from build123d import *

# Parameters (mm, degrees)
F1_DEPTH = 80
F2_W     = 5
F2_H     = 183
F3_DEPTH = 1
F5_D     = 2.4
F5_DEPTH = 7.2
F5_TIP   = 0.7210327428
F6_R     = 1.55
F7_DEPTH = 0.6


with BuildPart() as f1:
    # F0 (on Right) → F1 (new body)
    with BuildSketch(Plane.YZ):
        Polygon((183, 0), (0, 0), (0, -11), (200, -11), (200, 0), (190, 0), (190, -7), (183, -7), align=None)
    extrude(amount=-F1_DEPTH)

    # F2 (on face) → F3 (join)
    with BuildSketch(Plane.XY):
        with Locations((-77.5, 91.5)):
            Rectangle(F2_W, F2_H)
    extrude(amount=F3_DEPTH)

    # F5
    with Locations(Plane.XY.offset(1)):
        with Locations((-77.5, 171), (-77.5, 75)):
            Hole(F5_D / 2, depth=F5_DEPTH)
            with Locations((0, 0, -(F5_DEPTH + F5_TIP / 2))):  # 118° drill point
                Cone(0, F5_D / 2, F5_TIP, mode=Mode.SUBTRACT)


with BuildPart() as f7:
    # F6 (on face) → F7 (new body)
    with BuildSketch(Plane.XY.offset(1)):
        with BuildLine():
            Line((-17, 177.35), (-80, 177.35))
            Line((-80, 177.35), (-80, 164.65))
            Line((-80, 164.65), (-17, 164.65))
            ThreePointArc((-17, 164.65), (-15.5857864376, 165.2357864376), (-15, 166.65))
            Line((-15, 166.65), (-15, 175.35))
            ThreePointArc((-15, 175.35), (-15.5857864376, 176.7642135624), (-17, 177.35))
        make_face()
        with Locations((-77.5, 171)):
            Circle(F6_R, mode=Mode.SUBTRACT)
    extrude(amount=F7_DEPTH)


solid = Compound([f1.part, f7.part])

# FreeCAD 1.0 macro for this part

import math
import FreeCAD as App
import Part
import Sketcher


def add_polygon(sketch, points):
    """Adds a closed chain of lines whose ends are joined by coincident constraints."""
    first, n = sketch.GeometryCount, len(points)
    for a, b in zip(points, points[1:] + points[:1]):
        sketch.addGeometry(Part.LineSegment(App.Vector(*a, 0), App.Vector(*b, 0)), False)
    for i in range(n):
        sketch.addConstraint(Sketcher.Constraint("Coincident", first + i, 2, first + (i + 1) % n, 1))

doc = App.newDocument("Part")
body = doc.addObject("PartDesign::Body", "Body")

sketch1 = body.newObject("Sketcher::SketchObject", "Sketch")
sketch1.AttachmentSupport = (doc.getObject("YZ_Plane"), [""])
sketch1.MapMode = "FlatFace"
add_polygon(sketch1, [(183, 0), (0, 0), (0, -11), (200, -11), (200, 0), (190, 0), (190, -7), (183, -7)])
sketch1.addConstraint([
    Sketcher.Constraint("Horizontal", 0),
    Sketcher.Constraint("Vertical", 1),
    Sketcher.Constraint("Horizontal", 2),
    Sketcher.Constraint("Vertical", 3),
    Sketcher.Constraint("Horizontal", 4),
    Sketcher.Constraint("Vertical", 5),
    Sketcher.Constraint("Horizontal", 6),
    Sketcher.Constraint("Vertical", 7),
    Sketcher.Constraint("Coincident", 0, 2, -1, 1),
    Sketcher.Constraint("PointOnObject", 3, 2, -1),
    Sketcher.Constraint("Equal", 6, 5),
    Sketcher.Constraint("DistanceX", 0, 2, 0, 1, 183.0),
    Sketcher.Constraint("DistanceX", 2, 1, 2, 2, 200.0),
    Sketcher.Constraint("DistanceX", 4, 2, 4, 1, 10.0),
    Sketcher.Constraint("DistanceY", 1, 2, 1, 1, 11.0),
])
pad1 = body.newObject("PartDesign::Pad", "Pad")
pad1.Profile = sketch1
pad1.Length = 80
pad1.Reversed = True

sketch2 = body.newObject("Sketcher::SketchObject", "Sketch001")
sketch2.AttachmentSupport = (doc.getObject("XY_Plane"), [""])
sketch2.MapMode = "FlatFace"
add_polygon(sketch2, [(-80, 183), (-80, 0), (-75, 0), (-75, 183)])
sketch2.addConstraint([
    Sketcher.Constraint("Vertical", 0),
    Sketcher.Constraint("Horizontal", 1),
    Sketcher.Constraint("Vertical", 2),
    Sketcher.Constraint("Horizontal", 3),
    Sketcher.Constraint("PointOnObject", 0, 2, -1),
    Sketcher.Constraint("DistanceX", 1, 1, 1, 2, 5.0),
    Sketcher.Constraint("DistanceY", 0, 2, 0, 1, 183.0),
    Sketcher.Constraint("DistanceX", 0, 2, -1, 1, 80.0),
])
pad2 = body.newObject("PartDesign::Pad", "Pad001")
pad2.Profile = sketch2
pad2.Length = 1

sketch3 = body.newObject("Sketcher::SketchObject", "Sketch002")
sketch3.AttachmentSupport = (doc.getObject("XY_Plane"), [""])
sketch3.MapMode = "FlatFace"
sketch3.AttachmentOffset = App.Placement(App.Vector(0, 0, 1), App.Rotation())
sketch3.addGeometry([
    Part.Circle(App.Vector(-77.5, 171, 0), App.Vector(0, 0, 1), 1.2),
    Part.Circle(App.Vector(-77.5, 75, 0), App.Vector(0, 0, 1), 1.2),
], False)
sketch3.addConstraint([
    Sketcher.Constraint("Equal", 0, 1),
    Sketcher.Constraint("Vertical", 0, 3, 1, 3),
    Sketcher.Constraint("Diameter", 0, 2.4),
    Sketcher.Constraint("DistanceY", -1, 1, 0, 3, 171.0),
    Sketcher.Constraint("DistanceY", -1, 1, 1, 3, 75.0),
    Sketcher.Constraint("DistanceX", 0, 3, -1, 1, 77.5),
])
doc.recompute()
hole = body.newObject("PartDesign::Hole", "Hole")
hole.Profile = sketch3
hole.ThreadType = "None"
hole.Diameter = 2.4
hole.DepthType = "Dimension"
hole.Depth = 7.2
hole.DrillPoint = "Angled"
hole.DrillPointAngle = 118
body2 = doc.addObject("PartDesign::Body", "Body001")

sketch4 = body2.newObject("Sketcher::SketchObject", "Sketch003")
sketch4.AttachmentSupport = (doc.getObject("XY_Plane001"), [""])
sketch4.MapMode = "FlatFace"
sketch4.AttachmentOffset = App.Placement(App.Vector(0, 0, 1), App.Rotation())
sketch4.addGeometry([
    Part.LineSegment(App.Vector(-17, 177.3, 0), App.Vector(-80, 177.3, 0)),
    Part.LineSegment(App.Vector(-80, 177.3, 0), App.Vector(-80, 164.7, 0)),
    Part.LineSegment(App.Vector(-80, 164.7, 0), App.Vector(-17, 164.7, 0)),
    Part.ArcOfCircle(Part.Circle(App.Vector(-17, 166.7, 0), App.Vector(0, 0, 1), 2), math.radians(-90), math.radians(0)),
    Part.LineSegment(App.Vector(-15, 166.7, 0), App.Vector(-15, 175.3, 0)),
    Part.ArcOfCircle(Part.Circle(App.Vector(-17, 175.3, 0), App.Vector(0, 0, 1), 2), math.radians(0), math.radians(90)),
    Part.Circle(App.Vector(-77.5, 171, 0), App.Vector(0, 0, 1), 1.6),
], False)
sketch4.addConstraint([
    Sketcher.Constraint("Coincident", 0, 2, 1, 1),
    Sketcher.Constraint("Coincident", 1, 2, 2, 1),
    Sketcher.Constraint("Tangent", 2, 2, 3, 1),
    Sketcher.Constraint("Tangent", 3, 2, 4, 1),
    Sketcher.Constraint("Tangent", 4, 2, 5, 1),
    Sketcher.Constraint("Tangent", 5, 2, 0, 1),
    Sketcher.Constraint("Horizontal", 0),
    Sketcher.Constraint("Vertical", 1),
    Sketcher.Constraint("Horizontal", 2),
    Sketcher.Constraint("Vertical", 4),
    Sketcher.Constraint("Equal", 3, 5),
    Sketcher.Constraint("Radius", 3, 2.0),
    Sketcher.Constraint("Diameter", 6, 3.1),
    Sketcher.Constraint("DistanceX", 0, 2, 0, 1, 63.0),
    Sketcher.Constraint("DistanceY", 1, 2, 1, 1, 12.7),
    Sketcher.Constraint("DistanceX", 3, 3, -1, 1, 17.0),
    Sketcher.Constraint("DistanceY", -1, 1, 6, 3, 171.0),
    Sketcher.Constraint("DistanceX", 6, 3, -1, 1, 77.5),
    Sketcher.Constraint("DistanceY", -1, 1, 3, 3, 166.65),
])
pad3 = body2.newObject("PartDesign::Pad", "Pad002")
pad3.Profile = sketch4
pad3.Length = 0.6

doc.recompute()
